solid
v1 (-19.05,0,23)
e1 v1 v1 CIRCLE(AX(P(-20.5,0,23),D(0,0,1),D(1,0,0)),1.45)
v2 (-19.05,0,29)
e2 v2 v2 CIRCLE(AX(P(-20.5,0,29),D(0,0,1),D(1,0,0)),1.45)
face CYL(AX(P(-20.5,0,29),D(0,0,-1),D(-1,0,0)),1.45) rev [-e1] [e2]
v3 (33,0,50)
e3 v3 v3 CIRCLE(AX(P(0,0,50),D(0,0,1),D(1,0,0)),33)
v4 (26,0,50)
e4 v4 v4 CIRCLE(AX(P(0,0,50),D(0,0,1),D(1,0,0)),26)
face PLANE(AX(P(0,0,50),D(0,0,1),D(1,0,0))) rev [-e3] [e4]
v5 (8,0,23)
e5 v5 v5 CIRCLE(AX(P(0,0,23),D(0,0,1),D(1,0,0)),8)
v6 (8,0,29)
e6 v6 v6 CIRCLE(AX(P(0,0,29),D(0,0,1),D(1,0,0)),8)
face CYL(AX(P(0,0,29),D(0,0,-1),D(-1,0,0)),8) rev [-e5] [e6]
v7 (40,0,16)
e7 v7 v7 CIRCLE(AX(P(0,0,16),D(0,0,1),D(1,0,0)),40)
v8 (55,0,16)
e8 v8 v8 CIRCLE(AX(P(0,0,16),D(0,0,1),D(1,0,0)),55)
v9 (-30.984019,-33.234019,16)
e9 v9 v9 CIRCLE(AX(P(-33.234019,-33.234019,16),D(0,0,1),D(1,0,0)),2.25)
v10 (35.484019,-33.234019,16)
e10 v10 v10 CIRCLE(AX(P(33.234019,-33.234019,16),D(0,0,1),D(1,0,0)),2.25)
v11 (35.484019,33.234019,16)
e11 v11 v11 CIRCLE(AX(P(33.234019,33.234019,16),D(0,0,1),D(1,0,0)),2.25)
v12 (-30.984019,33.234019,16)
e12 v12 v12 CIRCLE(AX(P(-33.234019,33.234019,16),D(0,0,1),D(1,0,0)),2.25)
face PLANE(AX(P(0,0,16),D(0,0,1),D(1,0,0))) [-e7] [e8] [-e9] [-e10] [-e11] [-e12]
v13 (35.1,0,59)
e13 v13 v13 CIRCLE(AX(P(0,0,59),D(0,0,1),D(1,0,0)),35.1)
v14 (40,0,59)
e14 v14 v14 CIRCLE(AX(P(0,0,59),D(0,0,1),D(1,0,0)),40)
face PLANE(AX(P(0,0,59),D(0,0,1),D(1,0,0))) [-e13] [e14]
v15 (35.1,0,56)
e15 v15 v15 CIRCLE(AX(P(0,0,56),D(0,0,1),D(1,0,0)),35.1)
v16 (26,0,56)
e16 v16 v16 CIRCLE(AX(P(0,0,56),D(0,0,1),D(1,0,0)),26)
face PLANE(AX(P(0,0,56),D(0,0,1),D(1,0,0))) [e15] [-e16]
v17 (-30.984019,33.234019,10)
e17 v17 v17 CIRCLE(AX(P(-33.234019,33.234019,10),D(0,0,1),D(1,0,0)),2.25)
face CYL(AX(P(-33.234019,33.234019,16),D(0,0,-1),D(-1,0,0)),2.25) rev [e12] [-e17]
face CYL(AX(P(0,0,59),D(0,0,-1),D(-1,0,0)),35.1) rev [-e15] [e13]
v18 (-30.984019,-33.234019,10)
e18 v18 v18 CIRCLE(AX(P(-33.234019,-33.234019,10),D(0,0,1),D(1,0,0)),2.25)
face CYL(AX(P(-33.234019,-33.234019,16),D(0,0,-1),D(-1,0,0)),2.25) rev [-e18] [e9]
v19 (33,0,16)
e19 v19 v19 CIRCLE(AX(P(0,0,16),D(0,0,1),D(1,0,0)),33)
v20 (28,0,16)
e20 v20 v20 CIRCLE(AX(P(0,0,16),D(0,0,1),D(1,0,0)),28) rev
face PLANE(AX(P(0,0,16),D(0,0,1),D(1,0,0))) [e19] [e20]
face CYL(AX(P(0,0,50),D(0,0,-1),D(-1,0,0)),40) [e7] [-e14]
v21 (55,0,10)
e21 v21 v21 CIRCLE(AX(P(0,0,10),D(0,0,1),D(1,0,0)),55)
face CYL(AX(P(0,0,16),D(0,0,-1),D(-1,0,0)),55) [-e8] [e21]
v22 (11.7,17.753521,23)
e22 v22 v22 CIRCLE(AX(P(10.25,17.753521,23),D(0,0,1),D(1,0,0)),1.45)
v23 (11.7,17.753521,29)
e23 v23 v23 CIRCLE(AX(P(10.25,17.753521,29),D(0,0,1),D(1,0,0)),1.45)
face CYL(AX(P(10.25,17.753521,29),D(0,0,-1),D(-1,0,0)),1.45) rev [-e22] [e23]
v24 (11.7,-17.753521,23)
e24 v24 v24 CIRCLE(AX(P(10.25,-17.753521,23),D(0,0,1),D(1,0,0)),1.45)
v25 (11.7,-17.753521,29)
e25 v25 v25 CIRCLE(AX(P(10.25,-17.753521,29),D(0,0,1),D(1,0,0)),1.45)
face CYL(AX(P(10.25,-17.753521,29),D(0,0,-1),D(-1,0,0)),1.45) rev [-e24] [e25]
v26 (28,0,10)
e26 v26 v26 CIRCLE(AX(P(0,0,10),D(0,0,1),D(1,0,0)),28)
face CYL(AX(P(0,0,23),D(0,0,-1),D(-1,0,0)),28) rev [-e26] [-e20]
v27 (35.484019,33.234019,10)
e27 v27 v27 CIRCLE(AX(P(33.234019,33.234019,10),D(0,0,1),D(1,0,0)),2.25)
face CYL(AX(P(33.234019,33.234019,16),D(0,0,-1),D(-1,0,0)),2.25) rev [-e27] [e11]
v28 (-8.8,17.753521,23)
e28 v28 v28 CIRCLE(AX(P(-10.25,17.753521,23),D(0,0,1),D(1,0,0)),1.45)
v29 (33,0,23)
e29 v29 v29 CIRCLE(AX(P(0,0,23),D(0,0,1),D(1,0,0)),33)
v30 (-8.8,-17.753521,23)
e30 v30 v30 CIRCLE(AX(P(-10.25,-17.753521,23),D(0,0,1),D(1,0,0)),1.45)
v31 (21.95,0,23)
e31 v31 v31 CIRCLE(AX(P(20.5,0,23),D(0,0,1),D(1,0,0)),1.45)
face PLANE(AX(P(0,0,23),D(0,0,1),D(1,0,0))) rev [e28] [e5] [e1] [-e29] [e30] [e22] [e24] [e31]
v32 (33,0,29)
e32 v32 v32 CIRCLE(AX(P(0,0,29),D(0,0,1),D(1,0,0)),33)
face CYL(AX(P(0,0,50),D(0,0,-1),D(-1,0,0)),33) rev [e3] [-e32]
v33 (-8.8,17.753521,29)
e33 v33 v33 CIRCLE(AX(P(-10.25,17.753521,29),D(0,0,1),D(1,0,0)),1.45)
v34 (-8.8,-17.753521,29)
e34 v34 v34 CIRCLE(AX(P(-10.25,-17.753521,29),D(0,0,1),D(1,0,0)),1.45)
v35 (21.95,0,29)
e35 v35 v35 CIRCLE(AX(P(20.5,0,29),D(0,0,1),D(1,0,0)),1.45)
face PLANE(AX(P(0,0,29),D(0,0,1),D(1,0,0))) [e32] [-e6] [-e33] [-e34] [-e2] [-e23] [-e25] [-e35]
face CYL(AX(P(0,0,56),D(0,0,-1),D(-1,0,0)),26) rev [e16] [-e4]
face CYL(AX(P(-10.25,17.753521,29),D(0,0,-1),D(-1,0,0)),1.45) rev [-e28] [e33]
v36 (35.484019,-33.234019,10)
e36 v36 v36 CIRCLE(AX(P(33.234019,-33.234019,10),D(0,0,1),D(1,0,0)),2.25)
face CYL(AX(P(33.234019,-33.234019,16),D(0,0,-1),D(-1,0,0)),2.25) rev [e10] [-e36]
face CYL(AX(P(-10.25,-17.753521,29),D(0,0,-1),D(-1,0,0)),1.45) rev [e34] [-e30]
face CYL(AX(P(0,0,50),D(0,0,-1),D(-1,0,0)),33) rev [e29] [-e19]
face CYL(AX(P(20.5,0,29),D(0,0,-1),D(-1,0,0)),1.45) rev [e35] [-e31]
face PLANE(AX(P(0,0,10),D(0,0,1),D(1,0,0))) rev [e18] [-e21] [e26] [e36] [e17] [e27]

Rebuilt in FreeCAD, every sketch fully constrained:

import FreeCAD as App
import Part
import Sketcher
Q = App.Units.Quantity

doc = App.newDocument("Part")
body = doc.addObject("PartDesign::Body", "Body")

sketch1 = body.newObject("Sketcher::SketchObject", "Sketch")
sketch1.AttachmentSupport = (doc.getObject("XY_Plane"), [""])
sketch1.MapMode = "FlatFace"
sketch1.AttachmentOffset = App.Placement(App.Vector(0, 0, 10), App.Rotation())
sketch1.addGeometry(Part.Circle(App.Vector(0, 0, 0), App.Vector(0, 0, 1), 55), False)
sketch1.addConstraint(Sketcher.Constraint("Coincident", 0, 3, -1, 1))
sketch1.addConstraint(Sketcher.Constraint("Diameter", 0, Q("110 mm")))
pad1 = body.newObject("PartDesign::Pad", "Pad")
pad1.Profile = sketch1
pad1.Length = 6

sketch2 = body.newObject("Sketcher::SketchObject", "Sketch001")
sketch2.AttachmentSupport = (doc.getObject("XY_Plane"), [""])
sketch2.MapMode = "FlatFace"
sketch2.AttachmentOffset = App.Placement(App.Vector(0, 0, 16), App.Rotation())
sketch2.addGeometry(Part.Circle(App.Vector(0, 0, 0), App.Vector(0, 0, 1), 40), False)
sketch2.addGeometry(Part.Circle(App.Vector(0, 0, 0), App.Vector(0, 0, 1), 33), False)
sketch2.addConstraint(Sketcher.Constraint("Coincident", 0, 3, -1, 1))
sketch2.addConstraint(Sketcher.Constraint("Coincident", 1, 3, -1, 1))
sketch2.addConstraint(Sketcher.Constraint("Diameter", 0, Q("80 mm")))
sketch2.addConstraint(Sketcher.Constraint("Diameter", 1, Q("66 mm")))
pad2 = body.newObject("PartDesign::Pad", "Pad001")
pad2.Profile = sketch2
pad2.Length = 34

sketch3 = body.newObject("Sketcher::SketchObject", "Sketch002")
sketch3.AttachmentSupport = (doc.getObject("XY_Plane"), [""])
sketch3.MapMode = "FlatFace"
sketch3.AttachmentOffset = App.Placement(App.Vector(0, 0, 50), App.Rotation())
sketch3.addGeometry(Part.Circle(App.Vector(0, 0, 0), App.Vector(0, 0, 1), 40), False)
sketch3.addGeometry(Part.Circle(App.Vector(0, 0, 0), App.Vector(0, 0, 1), 26), False)
sketch3.addConstraint(Sketcher.Constraint("Coincident", 0, 3, -1, 1))
sketch3.addConstraint(Sketcher.Constraint("Coincident", 1, 3, -1, 1))
sketch3.addConstraint(Sketcher.Constraint("Diameter", 0, Q("80 mm")))
sketch3.addConstraint(Sketcher.Constraint("Diameter", 1, Q("52 mm")))
pad3 = body.newObject("PartDesign::Pad", "Pad002")
pad3.Profile = sketch3
pad3.Length = 6

sketch4 = body.newObject("Sketcher::SketchObject", "Sketch003")
sketch4.AttachmentSupport = (doc.getObject("XY_Plane"), [""])
sketch4.MapMode = "FlatFace"
sketch4.AttachmentOffset = App.Placement(App.Vector(0, 0, 56), App.Rotation())
sketch4.addGeometry(Part.Circle(App.Vector(0, 0, 0), App.Vector(0, 0, 1), 40), False)
sketch4.addGeometry(Part.Circle(App.Vector(0, 0, 0), App.Vector(0, 0, 1), 35), False)
sketch4.addConstraint(Sketcher.Constraint("Coincident", 0, 3, -1, 1))
sketch4.addConstraint(Sketcher.Constraint("Coincident", 1, 3, -1, 1))
sketch4.addConstraint(Sketcher.Constraint("Diameter", 0, Q("80 mm")))
sketch4.addConstraint(Sketcher.Constraint("Diameter", 1, Q("70.2 mm")))
pad4 = body.newObject("PartDesign::Pad", "Pad003")
pad4.Profile = sketch4
pad4.Length = 3

sketch5 = body.newObject("Sketcher::SketchObject", "Sketch004")
sketch5.AttachmentSupport = (doc.getObject("XY_Plane"), [""])
sketch5.MapMode = "FlatFace"
sketch5.AttachmentOffset = App.Placement(App.Vector(0, 0, 23), App.Rotation())
sketch5.addGeometry(Part.Circle(App.Vector(0, 0, 0), App.Vector(0, 0, 1), 33), False)
sketch5.addConstraint(Sketcher.Constraint("Coincident", 0, 3, -1, 1))
sketch5.addConstraint(Sketcher.Constraint("Diameter", 0, Q("66 mm")))
pad5 = body.newObject("PartDesign::Pad", "Pad004")
pad5.Profile = sketch5
pad5.Length = 6

sketch6 = body.newObject("Sketcher::SketchObject", "Sketch005")
sketch6.AttachmentSupport = (doc.getObject("XY_Plane"), [""])
sketch6.MapMode = "FlatFace"
sketch6.AttachmentOffset = App.Placement(App.Vector(0, 0, 10), App.Rotation())
sketch6.addGeometry(Part.Circle(App.Vector(0, 0, 0), App.Vector(0, 0, 1), 28), False)
sketch6.addConstraint(Sketcher.Constraint("Coincident", 0, 3, -1, 1))
sketch6.addConstraint(Sketcher.Constraint("Diameter", 0, Q("56 mm")))
pocket1 = body.newObject("PartDesign::Pocket", "Pocket")
pocket1.Profile = sketch6
pocket1.Length = 13
pocket1.Reversed = True

sketch7 = body.newObject("Sketcher::SketchObject", "Sketch006")
sketch7.AttachmentSupport = (doc.getObject("XY_Plane"), [""])
sketch7.MapMode = "FlatFace"
sketch7.AttachmentOffset = App.Placement(App.Vector(0, 0, 23), App.Rotation())
sketch7.addGeometry(Part.Circle(App.Vector(0, 0, 0), App.Vector(0, 0, 1), 8), False)
sketch7.addConstraint(Sketcher.Constraint("Coincident", 0, 3, -1, 1))
sketch7.addConstraint(Sketcher.Constraint("Diameter", 0, Q("16 mm")))
pocket2 = body.newObject("PartDesign::Pocket", "Pocket001")
pocket2.Profile = sketch7
pocket2.Length = 6
pocket2.Reversed = True

sketch8 = body.newObject("Sketcher::SketchObject", "Sketch007")
sketch8.AttachmentSupport = (doc.getObject("XY_Plane"), [""])
sketch8.MapMode = "FlatFace"
sketch8.AttachmentOffset = App.Placement(App.Vector(0, 0, 23), App.Rotation())
sketch8.addGeometry(Part.Circle(App.Vector(20.5, 0, 0), App.Vector(0, 0, 1), 1.4), False)
sketch8.addGeometry(Part.Circle(App.Vector(10.2, 17.8, 0), App.Vector(0, 0, 1), 1.4), False)
sketch8.addGeometry(Part.Circle(App.Vector(-10.2, 17.8, 0), App.Vector(0, 0, 1), 1.4), False)
sketch8.addGeometry(Part.Circle(App.Vector(-20.5, 0, 0), App.Vector(0, 0, 1), 1.4), False)
sketch8.addGeometry(Part.Circle(App.Vector(-10.2, -17.8, 0), App.Vector(0, 0, 1), 1.4), False)
sketch8.addGeometry(Part.Circle(App.Vector(10.2, -17.8, 0), App.Vector(0, 0, 1), 1.4), False)
sketch8.addConstraint(Sketcher.Constraint("Equal", 0, 1))
sketch8.addConstraint(Sketcher.Constraint("Equal", 1, 2))
sketch8.addConstraint(Sketcher.Constraint("Equal", 2, 3))
sketch8.addConstraint(Sketcher.Constraint("Equal", 3, 4))
sketch8.addConstraint(Sketcher.Constraint("Equal", 4, 5))
sketch8.addConstraint(Sketcher.Constraint("Symmetric", 0, 3, 3, 3, -1, 1))
sketch8.addConstraint(Sketcher.Constraint("Symmetric", 1, 3, 4, 3, -1, 1))
sketch8.addConstraint(Sketcher.Constraint("Symmetric", 2, 3, 5, 3, -1, 1))
sketch8.addConstraint(Sketcher.Constraint("Symmetric", 1, 3, 2, 3, -2))
sketch8.addConstraint(Sketcher.Constraint("PointOnObject", 0, 3, -1))
sketch8.addConstraint(Sketcher.Constraint("Diameter", 0, Q("2.9 mm")))
sketch8.addConstraint(Sketcher.Constraint("DistanceX", 3, 3, 0, 3, Q("41 mm")))
sketch8.addConstraint(Sketcher.Constraint("DistanceX", 2, 3, 1, 3, Q("20.5 mm")))
sketch8.addConstraint(Sketcher.Constraint("DistanceY", -1, 1, 1, 3, Q("17.753521 mm")))
pocket3 = body.newObject("PartDesign::Pocket", "Pocket002")
pocket3.Profile = sketch8
pocket3.Length = 6
pocket3.Reversed = True

sketch9 = body.newObject("Sketcher::SketchObject", "Sketch008")
sketch9.AttachmentSupport = (doc.getObject("XY_Plane"), [""])
sketch9.MapMode = "FlatFace"
sketch9.AttachmentOffset = App.Placement(App.Vector(0, 0, 10), App.Rotation())
sketch9.addGeometry(Part.Circle(App.Vector(33.2, 33.2, 0), App.Vector(0, 0, 1), 2.2), False)
sketch9.addGeometry(Part.Circle(App.Vector(-33.2, 33.2, 0), App.Vector(0, 0, 1), 2.2), False)
sketch9.addGeometry(Part.Circle(App.Vector(-33.2, -33.2, 0), App.Vector(0, 0, 1), 2.2), False)
sketch9.addGeometry(Part.Circle(App.Vector(33.2, -33.2, 0), App.Vector(0, 0, 1), 2.2), False)
sketch9.addConstraint(Sketcher.Constraint("Equal", 0, 1))
sketch9.addConstraint(Sketcher.Constraint("Equal", 1, 2))
sketch9.addConstraint(Sketcher.Constraint("Equal", 2, 3))
sketch9.addConstraint(Sketcher.Constraint("Symmetric", 0, 3, 2, 3, -1, 1))
sketch9.addConstraint(Sketcher.Constraint("Symmetric", 1, 3, 3, 3, -1, 1))
sketch9.addConstraint(Sketcher.Constraint("Symmetric", 0, 3, 1, 3, -2))
sketch9.addConstraint(Sketcher.Constraint("Diameter", 0, Q("4.5 mm")))
sketch9.addConstraint(Sketcher.Constraint("DistanceX", -1, 1, 0, 3, Q("33.234019 mm")))
sketch9.addConstraint(Sketcher.Constraint("DistanceY", -1, 1, 0, 3, Q("33.234019 mm")))
pocket4 = body.newObject("PartDesign::Pocket", "Pocket003")
pocket4.Profile = sketch9
pocket4.Length = 6
pocket4.Reversed = True

doc.recompute()
